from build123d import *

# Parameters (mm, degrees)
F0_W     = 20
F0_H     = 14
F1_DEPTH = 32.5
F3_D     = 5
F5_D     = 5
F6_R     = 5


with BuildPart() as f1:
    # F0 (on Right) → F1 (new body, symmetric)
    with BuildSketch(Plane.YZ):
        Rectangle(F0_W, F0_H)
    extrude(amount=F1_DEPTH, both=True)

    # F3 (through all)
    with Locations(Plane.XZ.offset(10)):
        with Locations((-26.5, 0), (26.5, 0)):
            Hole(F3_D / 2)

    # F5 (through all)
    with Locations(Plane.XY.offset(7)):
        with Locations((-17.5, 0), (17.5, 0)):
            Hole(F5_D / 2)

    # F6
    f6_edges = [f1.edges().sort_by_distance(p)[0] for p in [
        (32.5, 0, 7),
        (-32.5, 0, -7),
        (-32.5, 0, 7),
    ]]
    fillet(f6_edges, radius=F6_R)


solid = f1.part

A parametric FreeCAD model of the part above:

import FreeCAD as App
import Part
import Sketcher

V = App.Vector
Q = App.Units.Quantity


def edges_at(feature, points):
    """Names of the edges that pass closest to the given points."""
    edges = feature.Shape.Edges
    near = lambda p: min(range(len(edges)), key=lambda i: edges[i].distToShape(Part.Vertex(*p))[0])
    return sorted({f"Edge{near(p) + 1}" for p in points})

doc = App.newDocument("Part")
body = doc.addObject("PartDesign::Body", "Body")

sketch1 = body.newObject("Sketcher::SketchObject", "Sketch")
sketch1.AttachmentSupport = (doc.getObject("YZ_Plane"), [""])
sketch1.MapMode = "FlatFace"
sketch1.addGeometry(Part.LineSegment(V(-10, 7, 0), V(-10, -7, 0)), False)
sketch1.addGeometry(Part.LineSegment(V(-10, -7, 0), V(10, -7, 0)), False)
sketch1.addGeometry(Part.LineSegment(V(10, -7, 0), V(10, 7, 0)), False)
sketch1.addGeometry(Part.LineSegment(V(10, 7, 0), V(-10, 7, 0)), False)
sketch1.addConstraint(Sketcher.Constraint("Coincident", 0, 2, 1, 1))
sketch1.addConstraint(Sketcher.Constraint("Coincident", 1, 2, 2, 1))
sketch1.addConstraint(Sketcher.Constraint("Coincident", 2, 2, 3, 1))
sketch1.addConstraint(Sketcher.Constraint("Coincident", 3, 2, 0, 1))
sketch1.addConstraint(Sketcher.Constraint("Vertical", 0))
sketch1.addConstraint(Sketcher.Constraint("Horizontal", 1))
sketch1.addConstraint(Sketcher.Constraint("Vertical", 2))
sketch1.addConstraint(Sketcher.Constraint("Horizontal", 3))
sketch1.addConstraint(Sketcher.Constraint("Symmetric", 0, 2, 2, 2, -1, 1))
sketch1.addConstraint(Sketcher.Constraint("DistanceX", 1, 1, 1, 2, Q("20 mm")))
sketch1.addConstraint(Sketcher.Constraint("DistanceY", 0, 2, 0, 1, Q("14 mm")))
pad1 = body.newObject("PartDesign::Pad", "Pad")
pad1.Profile = sketch1
pad1.Length = 65
pad1.Midplane = True

sketch2 = body.newObject("Sketcher::SketchObject", "Sketch001")
sketch2.AttachmentSupport = (doc.getObject("XZ_Plane"), [""])
sketch2.MapMode = "FlatFace"
sketch2.AttachmentOffset = App.Placement(V(0, 0, 10), App.Rotation())
sketch2.addGeometry(Part.Circle(V(-26.5, 0, 0), V(0, 0, 1), 2.5), False)
sketch2.addGeometry(Part.Circle(V(26.5, 0, 0), V(0, 0, 1), 2.5), False)
sketch2.addConstraint(Sketcher.Constraint("Equal", 0, 1))
sketch2.addConstraint(Sketcher.Constraint("Symmetric", 0, 3, 1, 3, -1, 1))
sketch2.addConstraint(Sketcher.Constraint("PointOnObject", 0, 3, -1))
sketch2.addConstraint(Sketcher.Constraint("Diameter", 0, Q("5 mm")))
sketch2.addConstraint(Sketcher.Constraint("DistanceX", 0, 3, 1, 3, Q("53 mm")))
doc.recompute()
hole = body.newObject("PartDesign::Hole", "Hole")
hole.Profile = sketch2
hole.ThreadType = "None"
hole.Diameter = 5
hole.DepthType = "ThroughAll"

sketch3 = body.newObject("Sketcher::SketchObject", "Sketch002")
sketch3.AttachmentSupport = (doc.getObject("XY_Plane"), [""])
sketch3.MapMode = "FlatFace"
sketch3.AttachmentOffset = App.Placement(V(0, 0, 7), App.Rotation())
sketch3.addGeometry(Part.Circle(V(-17.5, 0, 0), V(0, 0, 1), 2.5), False)
sketch3.addGeometry(Part.Circle(V(17.5, 0, 0), V(0, 0, 1), 2.5), False)
sketch3.addConstraint(Sketcher.Constraint("Equal", 0, 1))
sketch3.addConstraint(Sketcher.Constraint("Symmetric", 0, 3, 1, 3, -1, 1))
sketch3.addConstraint(Sketcher.Constraint("PointOnObject", 0, 3, -1))
sketch3.addConstraint(Sketcher.Constraint("Diameter", 0, Q("5 mm")))
sketch3.addConstraint(Sketcher.Constraint("DistanceX", 0, 3, 1, 3, Q("35 mm")))
doc.recompute()
hole2 = body.newObject("PartDesign::Hole", "Hole001")
hole2.Profile = sketch3
hole2.ThreadType = "None"
hole2.Diameter = 5
hole2.DepthType = "ThroughAll"
doc.recompute()

fillet = body.newObject("PartDesign::Fillet", "Fillet")
fillet.Base = (hole2, edges_at(hole2, [(32.5, 0, 7), (-32.5, 0, -7), (-32.5, 0, 7)]))
fillet.Radius = 5

doc.recompute()
